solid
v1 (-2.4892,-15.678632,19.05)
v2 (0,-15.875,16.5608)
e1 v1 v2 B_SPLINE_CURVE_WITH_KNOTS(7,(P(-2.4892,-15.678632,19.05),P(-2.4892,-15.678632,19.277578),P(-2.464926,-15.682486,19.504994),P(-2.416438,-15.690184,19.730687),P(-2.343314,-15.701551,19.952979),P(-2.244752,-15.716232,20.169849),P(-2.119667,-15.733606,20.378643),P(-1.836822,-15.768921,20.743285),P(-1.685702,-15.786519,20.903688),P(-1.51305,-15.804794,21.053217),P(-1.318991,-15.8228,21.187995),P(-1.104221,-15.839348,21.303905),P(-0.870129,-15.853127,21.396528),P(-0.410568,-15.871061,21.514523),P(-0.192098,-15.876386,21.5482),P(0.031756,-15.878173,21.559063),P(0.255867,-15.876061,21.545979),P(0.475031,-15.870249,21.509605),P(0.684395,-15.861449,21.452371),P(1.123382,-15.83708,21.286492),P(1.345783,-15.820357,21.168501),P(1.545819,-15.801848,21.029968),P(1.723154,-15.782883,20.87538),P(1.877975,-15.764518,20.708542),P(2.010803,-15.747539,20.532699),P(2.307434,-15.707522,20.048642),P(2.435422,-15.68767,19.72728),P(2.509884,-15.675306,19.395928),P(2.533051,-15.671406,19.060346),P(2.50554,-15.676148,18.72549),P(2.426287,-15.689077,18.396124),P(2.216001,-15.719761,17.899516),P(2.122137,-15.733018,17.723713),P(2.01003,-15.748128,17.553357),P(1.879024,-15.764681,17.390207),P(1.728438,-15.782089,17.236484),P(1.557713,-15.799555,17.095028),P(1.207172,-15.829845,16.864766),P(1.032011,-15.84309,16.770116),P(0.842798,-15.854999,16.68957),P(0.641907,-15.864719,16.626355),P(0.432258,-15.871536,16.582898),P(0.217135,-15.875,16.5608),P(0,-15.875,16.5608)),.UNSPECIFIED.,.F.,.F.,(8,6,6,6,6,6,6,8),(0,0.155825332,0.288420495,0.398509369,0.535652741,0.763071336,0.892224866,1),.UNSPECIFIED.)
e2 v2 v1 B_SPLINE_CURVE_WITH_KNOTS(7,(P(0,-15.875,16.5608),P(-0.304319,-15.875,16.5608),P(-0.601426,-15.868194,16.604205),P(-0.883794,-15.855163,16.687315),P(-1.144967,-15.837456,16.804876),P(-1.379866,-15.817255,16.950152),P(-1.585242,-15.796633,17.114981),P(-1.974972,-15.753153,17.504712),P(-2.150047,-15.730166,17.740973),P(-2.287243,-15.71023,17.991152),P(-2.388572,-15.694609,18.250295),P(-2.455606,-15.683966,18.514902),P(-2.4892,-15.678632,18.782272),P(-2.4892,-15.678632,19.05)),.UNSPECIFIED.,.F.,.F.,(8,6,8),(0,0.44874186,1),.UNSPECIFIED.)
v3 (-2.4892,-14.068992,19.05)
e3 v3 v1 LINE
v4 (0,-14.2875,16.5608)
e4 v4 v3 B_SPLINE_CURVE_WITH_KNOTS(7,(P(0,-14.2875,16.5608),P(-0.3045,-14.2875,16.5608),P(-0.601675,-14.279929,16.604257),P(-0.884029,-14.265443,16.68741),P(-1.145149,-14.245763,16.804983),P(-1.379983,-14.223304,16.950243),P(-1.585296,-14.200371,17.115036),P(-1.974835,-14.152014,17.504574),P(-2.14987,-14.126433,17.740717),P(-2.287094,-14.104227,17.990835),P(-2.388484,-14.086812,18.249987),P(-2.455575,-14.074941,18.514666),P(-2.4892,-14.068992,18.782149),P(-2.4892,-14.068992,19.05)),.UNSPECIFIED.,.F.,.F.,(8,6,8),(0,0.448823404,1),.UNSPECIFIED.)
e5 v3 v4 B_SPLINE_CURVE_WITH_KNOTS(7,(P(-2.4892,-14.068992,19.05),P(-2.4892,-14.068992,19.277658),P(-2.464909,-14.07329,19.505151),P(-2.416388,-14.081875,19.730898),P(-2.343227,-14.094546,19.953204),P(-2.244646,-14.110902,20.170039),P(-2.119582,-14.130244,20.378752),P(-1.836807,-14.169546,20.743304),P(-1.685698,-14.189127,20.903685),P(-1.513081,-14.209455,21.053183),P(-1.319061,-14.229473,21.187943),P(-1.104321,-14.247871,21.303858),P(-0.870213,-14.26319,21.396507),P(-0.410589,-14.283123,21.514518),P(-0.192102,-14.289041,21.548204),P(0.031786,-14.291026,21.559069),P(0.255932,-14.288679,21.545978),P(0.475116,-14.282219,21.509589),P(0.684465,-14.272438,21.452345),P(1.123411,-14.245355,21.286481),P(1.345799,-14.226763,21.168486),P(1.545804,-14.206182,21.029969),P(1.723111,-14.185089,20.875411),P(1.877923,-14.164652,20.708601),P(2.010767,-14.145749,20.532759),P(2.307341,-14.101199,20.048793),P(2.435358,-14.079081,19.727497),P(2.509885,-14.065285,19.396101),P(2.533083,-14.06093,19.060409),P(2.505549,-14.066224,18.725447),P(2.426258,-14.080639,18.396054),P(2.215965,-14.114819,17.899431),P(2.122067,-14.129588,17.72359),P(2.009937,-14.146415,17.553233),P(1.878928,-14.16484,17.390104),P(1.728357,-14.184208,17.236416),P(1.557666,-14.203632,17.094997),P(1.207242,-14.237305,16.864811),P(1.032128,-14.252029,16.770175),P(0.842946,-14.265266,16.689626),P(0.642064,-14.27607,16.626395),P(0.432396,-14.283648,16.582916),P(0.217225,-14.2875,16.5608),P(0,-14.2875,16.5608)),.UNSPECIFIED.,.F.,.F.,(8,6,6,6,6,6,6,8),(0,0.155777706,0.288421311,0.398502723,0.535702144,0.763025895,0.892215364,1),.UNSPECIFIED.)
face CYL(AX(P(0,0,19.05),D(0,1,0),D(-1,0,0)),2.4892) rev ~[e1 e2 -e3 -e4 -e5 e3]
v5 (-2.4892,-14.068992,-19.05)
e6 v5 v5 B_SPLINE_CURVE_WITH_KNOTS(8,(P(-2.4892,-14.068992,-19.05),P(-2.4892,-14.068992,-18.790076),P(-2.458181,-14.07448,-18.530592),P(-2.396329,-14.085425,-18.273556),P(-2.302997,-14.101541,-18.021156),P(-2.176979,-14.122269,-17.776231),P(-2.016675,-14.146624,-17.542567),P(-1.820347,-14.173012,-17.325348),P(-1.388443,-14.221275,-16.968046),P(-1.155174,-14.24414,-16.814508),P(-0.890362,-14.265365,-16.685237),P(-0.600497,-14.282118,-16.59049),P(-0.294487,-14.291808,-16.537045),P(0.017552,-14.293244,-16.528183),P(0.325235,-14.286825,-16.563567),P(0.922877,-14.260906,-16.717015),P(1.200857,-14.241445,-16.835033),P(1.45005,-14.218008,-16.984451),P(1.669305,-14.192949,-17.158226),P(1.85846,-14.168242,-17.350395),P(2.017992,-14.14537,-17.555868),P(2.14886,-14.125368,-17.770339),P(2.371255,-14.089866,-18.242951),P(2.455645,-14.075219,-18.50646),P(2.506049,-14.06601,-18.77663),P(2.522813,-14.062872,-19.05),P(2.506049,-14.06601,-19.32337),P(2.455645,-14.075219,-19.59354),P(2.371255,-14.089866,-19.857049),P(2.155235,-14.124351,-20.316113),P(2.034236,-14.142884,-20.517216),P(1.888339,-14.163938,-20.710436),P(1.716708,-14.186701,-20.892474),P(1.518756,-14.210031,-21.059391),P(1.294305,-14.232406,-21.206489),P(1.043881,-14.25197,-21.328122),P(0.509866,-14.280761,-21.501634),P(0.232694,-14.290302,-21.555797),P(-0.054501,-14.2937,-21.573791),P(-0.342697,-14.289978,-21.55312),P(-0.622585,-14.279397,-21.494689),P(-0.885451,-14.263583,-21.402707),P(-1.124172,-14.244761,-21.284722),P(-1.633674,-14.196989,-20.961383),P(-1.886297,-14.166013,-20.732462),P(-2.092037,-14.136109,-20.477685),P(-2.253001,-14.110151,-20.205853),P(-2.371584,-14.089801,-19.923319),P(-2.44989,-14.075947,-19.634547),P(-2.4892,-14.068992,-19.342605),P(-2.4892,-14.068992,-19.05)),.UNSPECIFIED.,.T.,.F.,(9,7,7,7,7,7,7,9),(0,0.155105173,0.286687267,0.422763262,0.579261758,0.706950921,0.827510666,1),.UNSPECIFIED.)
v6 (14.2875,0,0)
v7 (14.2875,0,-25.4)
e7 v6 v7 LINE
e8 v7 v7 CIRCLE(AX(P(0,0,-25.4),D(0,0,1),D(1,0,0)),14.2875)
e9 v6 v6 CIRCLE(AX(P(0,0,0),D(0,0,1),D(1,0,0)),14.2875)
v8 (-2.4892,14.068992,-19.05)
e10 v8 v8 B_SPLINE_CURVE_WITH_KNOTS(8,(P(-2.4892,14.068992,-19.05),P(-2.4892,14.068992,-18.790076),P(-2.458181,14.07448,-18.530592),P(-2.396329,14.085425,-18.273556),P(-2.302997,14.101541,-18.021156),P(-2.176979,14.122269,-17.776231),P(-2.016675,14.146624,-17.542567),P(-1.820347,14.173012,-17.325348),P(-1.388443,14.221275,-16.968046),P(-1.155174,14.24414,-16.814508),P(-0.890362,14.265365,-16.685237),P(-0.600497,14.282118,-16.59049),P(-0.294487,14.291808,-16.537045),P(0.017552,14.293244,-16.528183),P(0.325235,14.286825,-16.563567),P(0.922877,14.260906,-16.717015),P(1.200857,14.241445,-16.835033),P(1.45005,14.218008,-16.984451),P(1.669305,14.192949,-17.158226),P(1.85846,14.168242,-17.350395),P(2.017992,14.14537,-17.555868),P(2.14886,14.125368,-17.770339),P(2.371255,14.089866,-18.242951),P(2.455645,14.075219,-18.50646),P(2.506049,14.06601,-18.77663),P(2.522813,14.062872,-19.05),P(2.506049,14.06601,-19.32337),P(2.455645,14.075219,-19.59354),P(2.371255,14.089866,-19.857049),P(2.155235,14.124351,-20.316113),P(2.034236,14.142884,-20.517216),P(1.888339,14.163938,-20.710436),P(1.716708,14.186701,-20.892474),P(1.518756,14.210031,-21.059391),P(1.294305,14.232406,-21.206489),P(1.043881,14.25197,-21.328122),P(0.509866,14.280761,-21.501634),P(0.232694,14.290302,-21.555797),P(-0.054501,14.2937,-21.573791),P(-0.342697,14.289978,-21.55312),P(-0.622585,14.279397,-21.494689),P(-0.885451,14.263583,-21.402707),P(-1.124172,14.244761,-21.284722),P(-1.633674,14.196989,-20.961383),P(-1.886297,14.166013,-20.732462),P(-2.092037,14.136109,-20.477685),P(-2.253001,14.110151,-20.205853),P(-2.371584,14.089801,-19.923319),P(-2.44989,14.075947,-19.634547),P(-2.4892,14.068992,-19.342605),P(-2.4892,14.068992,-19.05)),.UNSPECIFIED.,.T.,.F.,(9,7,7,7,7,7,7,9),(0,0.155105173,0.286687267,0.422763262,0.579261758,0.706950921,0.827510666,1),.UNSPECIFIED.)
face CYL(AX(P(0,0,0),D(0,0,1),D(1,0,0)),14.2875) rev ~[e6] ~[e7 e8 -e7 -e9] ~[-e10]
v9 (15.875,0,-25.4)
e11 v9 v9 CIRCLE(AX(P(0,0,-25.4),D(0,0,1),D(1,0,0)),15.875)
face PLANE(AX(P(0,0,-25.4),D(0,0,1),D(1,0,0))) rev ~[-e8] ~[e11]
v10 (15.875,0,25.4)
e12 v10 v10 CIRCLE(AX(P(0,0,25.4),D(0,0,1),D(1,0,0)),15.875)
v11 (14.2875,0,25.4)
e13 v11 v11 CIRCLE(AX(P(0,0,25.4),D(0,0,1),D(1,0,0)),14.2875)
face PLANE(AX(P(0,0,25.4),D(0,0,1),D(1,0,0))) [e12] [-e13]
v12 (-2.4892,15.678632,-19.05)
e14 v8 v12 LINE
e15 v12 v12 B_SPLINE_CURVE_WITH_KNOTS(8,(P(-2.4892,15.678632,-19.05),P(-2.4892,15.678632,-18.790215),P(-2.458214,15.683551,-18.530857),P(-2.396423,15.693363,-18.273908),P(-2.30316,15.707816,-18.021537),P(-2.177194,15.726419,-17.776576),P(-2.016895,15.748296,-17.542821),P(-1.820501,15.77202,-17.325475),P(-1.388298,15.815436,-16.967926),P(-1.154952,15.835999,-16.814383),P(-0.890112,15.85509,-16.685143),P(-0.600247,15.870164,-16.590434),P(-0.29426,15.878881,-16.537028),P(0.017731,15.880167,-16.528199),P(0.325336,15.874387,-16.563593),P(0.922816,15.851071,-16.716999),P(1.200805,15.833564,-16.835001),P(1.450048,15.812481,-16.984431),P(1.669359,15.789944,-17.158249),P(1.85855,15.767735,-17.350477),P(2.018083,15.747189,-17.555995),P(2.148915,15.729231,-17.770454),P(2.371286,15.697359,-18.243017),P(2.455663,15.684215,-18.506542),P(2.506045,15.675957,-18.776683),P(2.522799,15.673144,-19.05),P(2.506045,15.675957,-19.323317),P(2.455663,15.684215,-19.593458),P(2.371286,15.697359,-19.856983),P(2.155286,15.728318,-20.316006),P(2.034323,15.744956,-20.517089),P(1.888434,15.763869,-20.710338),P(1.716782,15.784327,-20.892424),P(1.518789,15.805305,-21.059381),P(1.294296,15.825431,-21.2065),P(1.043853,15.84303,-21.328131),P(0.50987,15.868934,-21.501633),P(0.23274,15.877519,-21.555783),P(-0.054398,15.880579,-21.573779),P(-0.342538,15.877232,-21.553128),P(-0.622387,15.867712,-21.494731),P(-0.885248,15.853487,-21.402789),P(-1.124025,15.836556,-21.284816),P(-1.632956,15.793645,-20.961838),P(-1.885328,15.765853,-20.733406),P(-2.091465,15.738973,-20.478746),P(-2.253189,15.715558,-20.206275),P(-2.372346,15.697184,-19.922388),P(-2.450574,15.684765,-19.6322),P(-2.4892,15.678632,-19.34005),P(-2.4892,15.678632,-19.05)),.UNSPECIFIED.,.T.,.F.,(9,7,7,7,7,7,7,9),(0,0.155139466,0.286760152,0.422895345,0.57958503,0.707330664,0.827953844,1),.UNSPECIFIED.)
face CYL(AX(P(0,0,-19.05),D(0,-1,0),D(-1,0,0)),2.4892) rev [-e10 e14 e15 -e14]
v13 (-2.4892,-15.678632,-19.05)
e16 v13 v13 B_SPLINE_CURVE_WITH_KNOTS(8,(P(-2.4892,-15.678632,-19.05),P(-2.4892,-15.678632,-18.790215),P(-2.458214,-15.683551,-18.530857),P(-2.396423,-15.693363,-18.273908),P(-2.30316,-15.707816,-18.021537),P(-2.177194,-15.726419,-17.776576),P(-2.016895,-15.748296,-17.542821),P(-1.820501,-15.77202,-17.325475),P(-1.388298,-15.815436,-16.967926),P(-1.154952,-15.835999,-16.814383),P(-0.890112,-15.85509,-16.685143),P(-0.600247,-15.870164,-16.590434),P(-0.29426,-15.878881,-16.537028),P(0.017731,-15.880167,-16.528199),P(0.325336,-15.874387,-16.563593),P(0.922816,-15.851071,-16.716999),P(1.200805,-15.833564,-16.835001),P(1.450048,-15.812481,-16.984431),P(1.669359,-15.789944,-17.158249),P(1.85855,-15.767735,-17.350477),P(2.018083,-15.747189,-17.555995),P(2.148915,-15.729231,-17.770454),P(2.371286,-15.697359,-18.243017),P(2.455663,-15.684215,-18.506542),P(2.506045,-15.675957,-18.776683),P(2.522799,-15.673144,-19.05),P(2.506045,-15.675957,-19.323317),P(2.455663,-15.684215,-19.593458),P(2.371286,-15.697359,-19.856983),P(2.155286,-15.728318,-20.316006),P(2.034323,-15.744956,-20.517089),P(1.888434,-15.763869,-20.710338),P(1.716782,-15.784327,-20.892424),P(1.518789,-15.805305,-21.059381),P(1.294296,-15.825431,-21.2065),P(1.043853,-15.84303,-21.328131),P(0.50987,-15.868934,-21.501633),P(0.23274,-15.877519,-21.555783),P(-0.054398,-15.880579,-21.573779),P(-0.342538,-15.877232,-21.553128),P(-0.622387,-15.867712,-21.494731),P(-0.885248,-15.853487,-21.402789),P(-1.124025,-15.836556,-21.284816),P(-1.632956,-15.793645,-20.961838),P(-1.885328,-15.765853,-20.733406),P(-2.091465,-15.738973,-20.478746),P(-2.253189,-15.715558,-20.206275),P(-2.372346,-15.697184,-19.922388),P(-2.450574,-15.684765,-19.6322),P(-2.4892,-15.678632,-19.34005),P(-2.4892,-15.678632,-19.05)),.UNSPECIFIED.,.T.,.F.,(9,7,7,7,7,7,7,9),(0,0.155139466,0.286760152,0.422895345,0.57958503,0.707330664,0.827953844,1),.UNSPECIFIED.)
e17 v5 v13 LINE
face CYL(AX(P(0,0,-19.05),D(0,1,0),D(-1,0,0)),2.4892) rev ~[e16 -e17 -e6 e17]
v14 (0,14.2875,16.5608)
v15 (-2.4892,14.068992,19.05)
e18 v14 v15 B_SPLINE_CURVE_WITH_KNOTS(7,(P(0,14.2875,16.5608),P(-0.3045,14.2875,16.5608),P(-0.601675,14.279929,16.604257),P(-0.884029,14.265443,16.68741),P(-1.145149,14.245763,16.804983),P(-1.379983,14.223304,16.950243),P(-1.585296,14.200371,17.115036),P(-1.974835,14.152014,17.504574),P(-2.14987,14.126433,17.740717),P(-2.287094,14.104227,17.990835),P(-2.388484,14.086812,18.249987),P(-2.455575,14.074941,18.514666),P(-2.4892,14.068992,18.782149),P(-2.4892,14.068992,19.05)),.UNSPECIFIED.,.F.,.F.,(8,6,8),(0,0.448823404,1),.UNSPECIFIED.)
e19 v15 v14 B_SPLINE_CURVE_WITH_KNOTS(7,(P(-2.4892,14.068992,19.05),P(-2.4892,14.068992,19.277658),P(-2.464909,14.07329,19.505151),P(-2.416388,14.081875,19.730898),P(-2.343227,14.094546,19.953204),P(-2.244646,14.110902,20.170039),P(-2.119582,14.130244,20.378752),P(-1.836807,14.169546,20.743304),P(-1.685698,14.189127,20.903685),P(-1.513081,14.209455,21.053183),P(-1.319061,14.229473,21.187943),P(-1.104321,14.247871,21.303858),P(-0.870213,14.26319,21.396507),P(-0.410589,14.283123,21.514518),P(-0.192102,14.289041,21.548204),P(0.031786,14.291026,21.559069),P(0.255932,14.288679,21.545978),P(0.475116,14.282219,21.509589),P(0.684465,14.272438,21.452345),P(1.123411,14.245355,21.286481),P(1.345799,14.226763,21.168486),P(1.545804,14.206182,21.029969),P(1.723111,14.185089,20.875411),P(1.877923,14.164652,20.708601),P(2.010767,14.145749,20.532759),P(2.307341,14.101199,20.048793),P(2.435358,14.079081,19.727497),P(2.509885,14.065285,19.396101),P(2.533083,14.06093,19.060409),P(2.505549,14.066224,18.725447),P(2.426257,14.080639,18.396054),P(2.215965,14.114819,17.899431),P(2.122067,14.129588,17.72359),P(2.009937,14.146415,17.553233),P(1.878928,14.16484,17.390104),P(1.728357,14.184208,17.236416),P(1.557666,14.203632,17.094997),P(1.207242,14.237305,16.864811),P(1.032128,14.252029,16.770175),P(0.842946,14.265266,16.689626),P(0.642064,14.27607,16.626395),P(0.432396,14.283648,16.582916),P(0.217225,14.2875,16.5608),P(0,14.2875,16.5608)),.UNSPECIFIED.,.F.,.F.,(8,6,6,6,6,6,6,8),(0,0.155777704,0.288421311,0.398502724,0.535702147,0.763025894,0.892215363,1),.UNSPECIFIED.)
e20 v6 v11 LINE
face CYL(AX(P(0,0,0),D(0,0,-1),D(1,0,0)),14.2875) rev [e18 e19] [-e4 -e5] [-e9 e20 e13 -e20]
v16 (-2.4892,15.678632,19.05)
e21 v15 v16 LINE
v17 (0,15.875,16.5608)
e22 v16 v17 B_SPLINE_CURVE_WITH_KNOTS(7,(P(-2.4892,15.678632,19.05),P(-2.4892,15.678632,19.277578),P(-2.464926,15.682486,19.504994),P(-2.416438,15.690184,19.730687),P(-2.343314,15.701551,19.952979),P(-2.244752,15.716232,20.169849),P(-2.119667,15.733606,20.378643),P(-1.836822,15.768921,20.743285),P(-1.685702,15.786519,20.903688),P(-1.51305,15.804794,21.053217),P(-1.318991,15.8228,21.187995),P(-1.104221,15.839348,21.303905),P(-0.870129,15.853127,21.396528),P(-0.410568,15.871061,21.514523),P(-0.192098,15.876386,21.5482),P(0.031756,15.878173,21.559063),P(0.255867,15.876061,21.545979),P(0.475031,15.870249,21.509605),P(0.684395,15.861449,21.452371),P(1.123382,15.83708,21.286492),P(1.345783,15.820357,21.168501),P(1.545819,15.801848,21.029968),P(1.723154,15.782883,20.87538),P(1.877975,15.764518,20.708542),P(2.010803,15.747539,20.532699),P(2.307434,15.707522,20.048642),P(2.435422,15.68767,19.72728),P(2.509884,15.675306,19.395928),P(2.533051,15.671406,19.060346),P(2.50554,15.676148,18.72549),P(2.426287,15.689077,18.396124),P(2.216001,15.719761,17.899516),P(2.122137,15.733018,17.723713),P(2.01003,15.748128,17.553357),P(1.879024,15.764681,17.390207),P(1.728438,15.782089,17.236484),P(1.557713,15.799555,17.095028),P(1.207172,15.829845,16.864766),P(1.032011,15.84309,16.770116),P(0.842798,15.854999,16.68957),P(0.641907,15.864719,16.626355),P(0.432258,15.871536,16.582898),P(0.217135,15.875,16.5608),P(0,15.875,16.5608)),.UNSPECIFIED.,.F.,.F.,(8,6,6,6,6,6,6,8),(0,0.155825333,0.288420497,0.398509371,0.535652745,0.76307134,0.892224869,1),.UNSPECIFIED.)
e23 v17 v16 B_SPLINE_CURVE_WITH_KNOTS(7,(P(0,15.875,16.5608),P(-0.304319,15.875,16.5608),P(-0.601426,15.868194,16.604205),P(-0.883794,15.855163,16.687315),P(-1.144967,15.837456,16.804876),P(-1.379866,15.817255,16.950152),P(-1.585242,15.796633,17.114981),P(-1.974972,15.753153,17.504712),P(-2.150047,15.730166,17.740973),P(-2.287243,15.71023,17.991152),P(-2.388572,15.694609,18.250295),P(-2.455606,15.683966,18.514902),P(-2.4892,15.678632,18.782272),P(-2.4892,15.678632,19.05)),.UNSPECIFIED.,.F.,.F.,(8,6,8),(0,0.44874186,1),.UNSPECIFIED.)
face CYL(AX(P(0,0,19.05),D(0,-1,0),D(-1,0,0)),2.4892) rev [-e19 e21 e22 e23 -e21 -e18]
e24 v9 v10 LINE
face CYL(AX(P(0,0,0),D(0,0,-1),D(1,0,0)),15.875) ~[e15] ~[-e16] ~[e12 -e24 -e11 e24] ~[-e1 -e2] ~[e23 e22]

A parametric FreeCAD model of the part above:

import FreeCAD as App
import Part
import Sketcher
Q = App.Units.Quantity

doc = App.newDocument("Part")
body = doc.addObject("PartDesign::Body", "Body")

sketch1 = body.newObject("Sketcher::SketchObject", "Sketch")
sketch1.AttachmentSupport = (doc.getObject("XY_Plane"), [""])
sketch1.MapMode = "FlatFace"
sketch1.addGeometry([
    Part.Circle(App.Vector(0, 0, 0), App.Vector(0, 0, 1), 15.875),
    Part.Circle(App.Vector(0, 0, 0), App.Vector(0, 0, 1), 14.2875),
], False)
sketch1.addConstraint([
    Sketcher.Constraint("Coincident", 0, 3, -1, 1),
    Sketcher.Constraint("Coincident", 1, 3, -1, 1),
    Sketcher.Constraint("Diameter", 0, Q("1.25 in")),
    Sketcher.Constraint("Diameter", 1, Q("1.125 in")),
])
pad1 = body.newObject("PartDesign::Pad", "Pad")
pad1.Profile = sketch1
pad1.Length = Q("2 in")
pad1.Midplane = True

sketch2 = body.newObject("Sketcher::SketchObject", "Sketch001")
sketch2.AttachmentSupport = (doc.getObject("XZ_Plane"), [""])
sketch2.MapMode = "FlatFace"
sketch2.addGeometry(Part.Circle(App.Vector(0, 19.05, 0), App.Vector(0, 0, 1), 2.4892), False)
sketch2.addConstraint([
    Sketcher.Constraint("PointOnObject", 0, 3, -2),
    Sketcher.Constraint("Diameter", 0, Q("0.196 in")),
    Sketcher.Constraint("DistanceY", -1, 1, 0, 3, Q("0.75 in")),
])
pocket1 = body.newObject("PartDesign::Pocket", "Pocket")
pocket1.Profile = sketch2
pocket1.Length = Q("2 in")
pocket1.Midplane = True

sketch3 = body.newObject("Sketcher::SketchObject", "Sketch002")
sketch3.AttachmentSupport = (doc.getObject("XZ_Plane"), [""])
sketch3.MapMode = "FlatFace"
sketch3.addGeometry(Part.Circle(App.Vector(0, -19.05, 0), App.Vector(0, 0, 1), 2.4892), False)
sketch3.addConstraint([
    Sketcher.Constraint("PointOnObject", 0, 3, -2),
    Sketcher.Constraint("Diameter", 0, Q("0.196 in")),
    Sketcher.Constraint("DistanceY", 0, 3, -1, 1, Q("0.75 in")),
])
pocket2 = body.newObject("PartDesign::Pocket", "Pocket001")
pocket2.Profile = sketch3
pocket2.Length = Q("2 in")
pocket2.Midplane = True

doc.recompute()
